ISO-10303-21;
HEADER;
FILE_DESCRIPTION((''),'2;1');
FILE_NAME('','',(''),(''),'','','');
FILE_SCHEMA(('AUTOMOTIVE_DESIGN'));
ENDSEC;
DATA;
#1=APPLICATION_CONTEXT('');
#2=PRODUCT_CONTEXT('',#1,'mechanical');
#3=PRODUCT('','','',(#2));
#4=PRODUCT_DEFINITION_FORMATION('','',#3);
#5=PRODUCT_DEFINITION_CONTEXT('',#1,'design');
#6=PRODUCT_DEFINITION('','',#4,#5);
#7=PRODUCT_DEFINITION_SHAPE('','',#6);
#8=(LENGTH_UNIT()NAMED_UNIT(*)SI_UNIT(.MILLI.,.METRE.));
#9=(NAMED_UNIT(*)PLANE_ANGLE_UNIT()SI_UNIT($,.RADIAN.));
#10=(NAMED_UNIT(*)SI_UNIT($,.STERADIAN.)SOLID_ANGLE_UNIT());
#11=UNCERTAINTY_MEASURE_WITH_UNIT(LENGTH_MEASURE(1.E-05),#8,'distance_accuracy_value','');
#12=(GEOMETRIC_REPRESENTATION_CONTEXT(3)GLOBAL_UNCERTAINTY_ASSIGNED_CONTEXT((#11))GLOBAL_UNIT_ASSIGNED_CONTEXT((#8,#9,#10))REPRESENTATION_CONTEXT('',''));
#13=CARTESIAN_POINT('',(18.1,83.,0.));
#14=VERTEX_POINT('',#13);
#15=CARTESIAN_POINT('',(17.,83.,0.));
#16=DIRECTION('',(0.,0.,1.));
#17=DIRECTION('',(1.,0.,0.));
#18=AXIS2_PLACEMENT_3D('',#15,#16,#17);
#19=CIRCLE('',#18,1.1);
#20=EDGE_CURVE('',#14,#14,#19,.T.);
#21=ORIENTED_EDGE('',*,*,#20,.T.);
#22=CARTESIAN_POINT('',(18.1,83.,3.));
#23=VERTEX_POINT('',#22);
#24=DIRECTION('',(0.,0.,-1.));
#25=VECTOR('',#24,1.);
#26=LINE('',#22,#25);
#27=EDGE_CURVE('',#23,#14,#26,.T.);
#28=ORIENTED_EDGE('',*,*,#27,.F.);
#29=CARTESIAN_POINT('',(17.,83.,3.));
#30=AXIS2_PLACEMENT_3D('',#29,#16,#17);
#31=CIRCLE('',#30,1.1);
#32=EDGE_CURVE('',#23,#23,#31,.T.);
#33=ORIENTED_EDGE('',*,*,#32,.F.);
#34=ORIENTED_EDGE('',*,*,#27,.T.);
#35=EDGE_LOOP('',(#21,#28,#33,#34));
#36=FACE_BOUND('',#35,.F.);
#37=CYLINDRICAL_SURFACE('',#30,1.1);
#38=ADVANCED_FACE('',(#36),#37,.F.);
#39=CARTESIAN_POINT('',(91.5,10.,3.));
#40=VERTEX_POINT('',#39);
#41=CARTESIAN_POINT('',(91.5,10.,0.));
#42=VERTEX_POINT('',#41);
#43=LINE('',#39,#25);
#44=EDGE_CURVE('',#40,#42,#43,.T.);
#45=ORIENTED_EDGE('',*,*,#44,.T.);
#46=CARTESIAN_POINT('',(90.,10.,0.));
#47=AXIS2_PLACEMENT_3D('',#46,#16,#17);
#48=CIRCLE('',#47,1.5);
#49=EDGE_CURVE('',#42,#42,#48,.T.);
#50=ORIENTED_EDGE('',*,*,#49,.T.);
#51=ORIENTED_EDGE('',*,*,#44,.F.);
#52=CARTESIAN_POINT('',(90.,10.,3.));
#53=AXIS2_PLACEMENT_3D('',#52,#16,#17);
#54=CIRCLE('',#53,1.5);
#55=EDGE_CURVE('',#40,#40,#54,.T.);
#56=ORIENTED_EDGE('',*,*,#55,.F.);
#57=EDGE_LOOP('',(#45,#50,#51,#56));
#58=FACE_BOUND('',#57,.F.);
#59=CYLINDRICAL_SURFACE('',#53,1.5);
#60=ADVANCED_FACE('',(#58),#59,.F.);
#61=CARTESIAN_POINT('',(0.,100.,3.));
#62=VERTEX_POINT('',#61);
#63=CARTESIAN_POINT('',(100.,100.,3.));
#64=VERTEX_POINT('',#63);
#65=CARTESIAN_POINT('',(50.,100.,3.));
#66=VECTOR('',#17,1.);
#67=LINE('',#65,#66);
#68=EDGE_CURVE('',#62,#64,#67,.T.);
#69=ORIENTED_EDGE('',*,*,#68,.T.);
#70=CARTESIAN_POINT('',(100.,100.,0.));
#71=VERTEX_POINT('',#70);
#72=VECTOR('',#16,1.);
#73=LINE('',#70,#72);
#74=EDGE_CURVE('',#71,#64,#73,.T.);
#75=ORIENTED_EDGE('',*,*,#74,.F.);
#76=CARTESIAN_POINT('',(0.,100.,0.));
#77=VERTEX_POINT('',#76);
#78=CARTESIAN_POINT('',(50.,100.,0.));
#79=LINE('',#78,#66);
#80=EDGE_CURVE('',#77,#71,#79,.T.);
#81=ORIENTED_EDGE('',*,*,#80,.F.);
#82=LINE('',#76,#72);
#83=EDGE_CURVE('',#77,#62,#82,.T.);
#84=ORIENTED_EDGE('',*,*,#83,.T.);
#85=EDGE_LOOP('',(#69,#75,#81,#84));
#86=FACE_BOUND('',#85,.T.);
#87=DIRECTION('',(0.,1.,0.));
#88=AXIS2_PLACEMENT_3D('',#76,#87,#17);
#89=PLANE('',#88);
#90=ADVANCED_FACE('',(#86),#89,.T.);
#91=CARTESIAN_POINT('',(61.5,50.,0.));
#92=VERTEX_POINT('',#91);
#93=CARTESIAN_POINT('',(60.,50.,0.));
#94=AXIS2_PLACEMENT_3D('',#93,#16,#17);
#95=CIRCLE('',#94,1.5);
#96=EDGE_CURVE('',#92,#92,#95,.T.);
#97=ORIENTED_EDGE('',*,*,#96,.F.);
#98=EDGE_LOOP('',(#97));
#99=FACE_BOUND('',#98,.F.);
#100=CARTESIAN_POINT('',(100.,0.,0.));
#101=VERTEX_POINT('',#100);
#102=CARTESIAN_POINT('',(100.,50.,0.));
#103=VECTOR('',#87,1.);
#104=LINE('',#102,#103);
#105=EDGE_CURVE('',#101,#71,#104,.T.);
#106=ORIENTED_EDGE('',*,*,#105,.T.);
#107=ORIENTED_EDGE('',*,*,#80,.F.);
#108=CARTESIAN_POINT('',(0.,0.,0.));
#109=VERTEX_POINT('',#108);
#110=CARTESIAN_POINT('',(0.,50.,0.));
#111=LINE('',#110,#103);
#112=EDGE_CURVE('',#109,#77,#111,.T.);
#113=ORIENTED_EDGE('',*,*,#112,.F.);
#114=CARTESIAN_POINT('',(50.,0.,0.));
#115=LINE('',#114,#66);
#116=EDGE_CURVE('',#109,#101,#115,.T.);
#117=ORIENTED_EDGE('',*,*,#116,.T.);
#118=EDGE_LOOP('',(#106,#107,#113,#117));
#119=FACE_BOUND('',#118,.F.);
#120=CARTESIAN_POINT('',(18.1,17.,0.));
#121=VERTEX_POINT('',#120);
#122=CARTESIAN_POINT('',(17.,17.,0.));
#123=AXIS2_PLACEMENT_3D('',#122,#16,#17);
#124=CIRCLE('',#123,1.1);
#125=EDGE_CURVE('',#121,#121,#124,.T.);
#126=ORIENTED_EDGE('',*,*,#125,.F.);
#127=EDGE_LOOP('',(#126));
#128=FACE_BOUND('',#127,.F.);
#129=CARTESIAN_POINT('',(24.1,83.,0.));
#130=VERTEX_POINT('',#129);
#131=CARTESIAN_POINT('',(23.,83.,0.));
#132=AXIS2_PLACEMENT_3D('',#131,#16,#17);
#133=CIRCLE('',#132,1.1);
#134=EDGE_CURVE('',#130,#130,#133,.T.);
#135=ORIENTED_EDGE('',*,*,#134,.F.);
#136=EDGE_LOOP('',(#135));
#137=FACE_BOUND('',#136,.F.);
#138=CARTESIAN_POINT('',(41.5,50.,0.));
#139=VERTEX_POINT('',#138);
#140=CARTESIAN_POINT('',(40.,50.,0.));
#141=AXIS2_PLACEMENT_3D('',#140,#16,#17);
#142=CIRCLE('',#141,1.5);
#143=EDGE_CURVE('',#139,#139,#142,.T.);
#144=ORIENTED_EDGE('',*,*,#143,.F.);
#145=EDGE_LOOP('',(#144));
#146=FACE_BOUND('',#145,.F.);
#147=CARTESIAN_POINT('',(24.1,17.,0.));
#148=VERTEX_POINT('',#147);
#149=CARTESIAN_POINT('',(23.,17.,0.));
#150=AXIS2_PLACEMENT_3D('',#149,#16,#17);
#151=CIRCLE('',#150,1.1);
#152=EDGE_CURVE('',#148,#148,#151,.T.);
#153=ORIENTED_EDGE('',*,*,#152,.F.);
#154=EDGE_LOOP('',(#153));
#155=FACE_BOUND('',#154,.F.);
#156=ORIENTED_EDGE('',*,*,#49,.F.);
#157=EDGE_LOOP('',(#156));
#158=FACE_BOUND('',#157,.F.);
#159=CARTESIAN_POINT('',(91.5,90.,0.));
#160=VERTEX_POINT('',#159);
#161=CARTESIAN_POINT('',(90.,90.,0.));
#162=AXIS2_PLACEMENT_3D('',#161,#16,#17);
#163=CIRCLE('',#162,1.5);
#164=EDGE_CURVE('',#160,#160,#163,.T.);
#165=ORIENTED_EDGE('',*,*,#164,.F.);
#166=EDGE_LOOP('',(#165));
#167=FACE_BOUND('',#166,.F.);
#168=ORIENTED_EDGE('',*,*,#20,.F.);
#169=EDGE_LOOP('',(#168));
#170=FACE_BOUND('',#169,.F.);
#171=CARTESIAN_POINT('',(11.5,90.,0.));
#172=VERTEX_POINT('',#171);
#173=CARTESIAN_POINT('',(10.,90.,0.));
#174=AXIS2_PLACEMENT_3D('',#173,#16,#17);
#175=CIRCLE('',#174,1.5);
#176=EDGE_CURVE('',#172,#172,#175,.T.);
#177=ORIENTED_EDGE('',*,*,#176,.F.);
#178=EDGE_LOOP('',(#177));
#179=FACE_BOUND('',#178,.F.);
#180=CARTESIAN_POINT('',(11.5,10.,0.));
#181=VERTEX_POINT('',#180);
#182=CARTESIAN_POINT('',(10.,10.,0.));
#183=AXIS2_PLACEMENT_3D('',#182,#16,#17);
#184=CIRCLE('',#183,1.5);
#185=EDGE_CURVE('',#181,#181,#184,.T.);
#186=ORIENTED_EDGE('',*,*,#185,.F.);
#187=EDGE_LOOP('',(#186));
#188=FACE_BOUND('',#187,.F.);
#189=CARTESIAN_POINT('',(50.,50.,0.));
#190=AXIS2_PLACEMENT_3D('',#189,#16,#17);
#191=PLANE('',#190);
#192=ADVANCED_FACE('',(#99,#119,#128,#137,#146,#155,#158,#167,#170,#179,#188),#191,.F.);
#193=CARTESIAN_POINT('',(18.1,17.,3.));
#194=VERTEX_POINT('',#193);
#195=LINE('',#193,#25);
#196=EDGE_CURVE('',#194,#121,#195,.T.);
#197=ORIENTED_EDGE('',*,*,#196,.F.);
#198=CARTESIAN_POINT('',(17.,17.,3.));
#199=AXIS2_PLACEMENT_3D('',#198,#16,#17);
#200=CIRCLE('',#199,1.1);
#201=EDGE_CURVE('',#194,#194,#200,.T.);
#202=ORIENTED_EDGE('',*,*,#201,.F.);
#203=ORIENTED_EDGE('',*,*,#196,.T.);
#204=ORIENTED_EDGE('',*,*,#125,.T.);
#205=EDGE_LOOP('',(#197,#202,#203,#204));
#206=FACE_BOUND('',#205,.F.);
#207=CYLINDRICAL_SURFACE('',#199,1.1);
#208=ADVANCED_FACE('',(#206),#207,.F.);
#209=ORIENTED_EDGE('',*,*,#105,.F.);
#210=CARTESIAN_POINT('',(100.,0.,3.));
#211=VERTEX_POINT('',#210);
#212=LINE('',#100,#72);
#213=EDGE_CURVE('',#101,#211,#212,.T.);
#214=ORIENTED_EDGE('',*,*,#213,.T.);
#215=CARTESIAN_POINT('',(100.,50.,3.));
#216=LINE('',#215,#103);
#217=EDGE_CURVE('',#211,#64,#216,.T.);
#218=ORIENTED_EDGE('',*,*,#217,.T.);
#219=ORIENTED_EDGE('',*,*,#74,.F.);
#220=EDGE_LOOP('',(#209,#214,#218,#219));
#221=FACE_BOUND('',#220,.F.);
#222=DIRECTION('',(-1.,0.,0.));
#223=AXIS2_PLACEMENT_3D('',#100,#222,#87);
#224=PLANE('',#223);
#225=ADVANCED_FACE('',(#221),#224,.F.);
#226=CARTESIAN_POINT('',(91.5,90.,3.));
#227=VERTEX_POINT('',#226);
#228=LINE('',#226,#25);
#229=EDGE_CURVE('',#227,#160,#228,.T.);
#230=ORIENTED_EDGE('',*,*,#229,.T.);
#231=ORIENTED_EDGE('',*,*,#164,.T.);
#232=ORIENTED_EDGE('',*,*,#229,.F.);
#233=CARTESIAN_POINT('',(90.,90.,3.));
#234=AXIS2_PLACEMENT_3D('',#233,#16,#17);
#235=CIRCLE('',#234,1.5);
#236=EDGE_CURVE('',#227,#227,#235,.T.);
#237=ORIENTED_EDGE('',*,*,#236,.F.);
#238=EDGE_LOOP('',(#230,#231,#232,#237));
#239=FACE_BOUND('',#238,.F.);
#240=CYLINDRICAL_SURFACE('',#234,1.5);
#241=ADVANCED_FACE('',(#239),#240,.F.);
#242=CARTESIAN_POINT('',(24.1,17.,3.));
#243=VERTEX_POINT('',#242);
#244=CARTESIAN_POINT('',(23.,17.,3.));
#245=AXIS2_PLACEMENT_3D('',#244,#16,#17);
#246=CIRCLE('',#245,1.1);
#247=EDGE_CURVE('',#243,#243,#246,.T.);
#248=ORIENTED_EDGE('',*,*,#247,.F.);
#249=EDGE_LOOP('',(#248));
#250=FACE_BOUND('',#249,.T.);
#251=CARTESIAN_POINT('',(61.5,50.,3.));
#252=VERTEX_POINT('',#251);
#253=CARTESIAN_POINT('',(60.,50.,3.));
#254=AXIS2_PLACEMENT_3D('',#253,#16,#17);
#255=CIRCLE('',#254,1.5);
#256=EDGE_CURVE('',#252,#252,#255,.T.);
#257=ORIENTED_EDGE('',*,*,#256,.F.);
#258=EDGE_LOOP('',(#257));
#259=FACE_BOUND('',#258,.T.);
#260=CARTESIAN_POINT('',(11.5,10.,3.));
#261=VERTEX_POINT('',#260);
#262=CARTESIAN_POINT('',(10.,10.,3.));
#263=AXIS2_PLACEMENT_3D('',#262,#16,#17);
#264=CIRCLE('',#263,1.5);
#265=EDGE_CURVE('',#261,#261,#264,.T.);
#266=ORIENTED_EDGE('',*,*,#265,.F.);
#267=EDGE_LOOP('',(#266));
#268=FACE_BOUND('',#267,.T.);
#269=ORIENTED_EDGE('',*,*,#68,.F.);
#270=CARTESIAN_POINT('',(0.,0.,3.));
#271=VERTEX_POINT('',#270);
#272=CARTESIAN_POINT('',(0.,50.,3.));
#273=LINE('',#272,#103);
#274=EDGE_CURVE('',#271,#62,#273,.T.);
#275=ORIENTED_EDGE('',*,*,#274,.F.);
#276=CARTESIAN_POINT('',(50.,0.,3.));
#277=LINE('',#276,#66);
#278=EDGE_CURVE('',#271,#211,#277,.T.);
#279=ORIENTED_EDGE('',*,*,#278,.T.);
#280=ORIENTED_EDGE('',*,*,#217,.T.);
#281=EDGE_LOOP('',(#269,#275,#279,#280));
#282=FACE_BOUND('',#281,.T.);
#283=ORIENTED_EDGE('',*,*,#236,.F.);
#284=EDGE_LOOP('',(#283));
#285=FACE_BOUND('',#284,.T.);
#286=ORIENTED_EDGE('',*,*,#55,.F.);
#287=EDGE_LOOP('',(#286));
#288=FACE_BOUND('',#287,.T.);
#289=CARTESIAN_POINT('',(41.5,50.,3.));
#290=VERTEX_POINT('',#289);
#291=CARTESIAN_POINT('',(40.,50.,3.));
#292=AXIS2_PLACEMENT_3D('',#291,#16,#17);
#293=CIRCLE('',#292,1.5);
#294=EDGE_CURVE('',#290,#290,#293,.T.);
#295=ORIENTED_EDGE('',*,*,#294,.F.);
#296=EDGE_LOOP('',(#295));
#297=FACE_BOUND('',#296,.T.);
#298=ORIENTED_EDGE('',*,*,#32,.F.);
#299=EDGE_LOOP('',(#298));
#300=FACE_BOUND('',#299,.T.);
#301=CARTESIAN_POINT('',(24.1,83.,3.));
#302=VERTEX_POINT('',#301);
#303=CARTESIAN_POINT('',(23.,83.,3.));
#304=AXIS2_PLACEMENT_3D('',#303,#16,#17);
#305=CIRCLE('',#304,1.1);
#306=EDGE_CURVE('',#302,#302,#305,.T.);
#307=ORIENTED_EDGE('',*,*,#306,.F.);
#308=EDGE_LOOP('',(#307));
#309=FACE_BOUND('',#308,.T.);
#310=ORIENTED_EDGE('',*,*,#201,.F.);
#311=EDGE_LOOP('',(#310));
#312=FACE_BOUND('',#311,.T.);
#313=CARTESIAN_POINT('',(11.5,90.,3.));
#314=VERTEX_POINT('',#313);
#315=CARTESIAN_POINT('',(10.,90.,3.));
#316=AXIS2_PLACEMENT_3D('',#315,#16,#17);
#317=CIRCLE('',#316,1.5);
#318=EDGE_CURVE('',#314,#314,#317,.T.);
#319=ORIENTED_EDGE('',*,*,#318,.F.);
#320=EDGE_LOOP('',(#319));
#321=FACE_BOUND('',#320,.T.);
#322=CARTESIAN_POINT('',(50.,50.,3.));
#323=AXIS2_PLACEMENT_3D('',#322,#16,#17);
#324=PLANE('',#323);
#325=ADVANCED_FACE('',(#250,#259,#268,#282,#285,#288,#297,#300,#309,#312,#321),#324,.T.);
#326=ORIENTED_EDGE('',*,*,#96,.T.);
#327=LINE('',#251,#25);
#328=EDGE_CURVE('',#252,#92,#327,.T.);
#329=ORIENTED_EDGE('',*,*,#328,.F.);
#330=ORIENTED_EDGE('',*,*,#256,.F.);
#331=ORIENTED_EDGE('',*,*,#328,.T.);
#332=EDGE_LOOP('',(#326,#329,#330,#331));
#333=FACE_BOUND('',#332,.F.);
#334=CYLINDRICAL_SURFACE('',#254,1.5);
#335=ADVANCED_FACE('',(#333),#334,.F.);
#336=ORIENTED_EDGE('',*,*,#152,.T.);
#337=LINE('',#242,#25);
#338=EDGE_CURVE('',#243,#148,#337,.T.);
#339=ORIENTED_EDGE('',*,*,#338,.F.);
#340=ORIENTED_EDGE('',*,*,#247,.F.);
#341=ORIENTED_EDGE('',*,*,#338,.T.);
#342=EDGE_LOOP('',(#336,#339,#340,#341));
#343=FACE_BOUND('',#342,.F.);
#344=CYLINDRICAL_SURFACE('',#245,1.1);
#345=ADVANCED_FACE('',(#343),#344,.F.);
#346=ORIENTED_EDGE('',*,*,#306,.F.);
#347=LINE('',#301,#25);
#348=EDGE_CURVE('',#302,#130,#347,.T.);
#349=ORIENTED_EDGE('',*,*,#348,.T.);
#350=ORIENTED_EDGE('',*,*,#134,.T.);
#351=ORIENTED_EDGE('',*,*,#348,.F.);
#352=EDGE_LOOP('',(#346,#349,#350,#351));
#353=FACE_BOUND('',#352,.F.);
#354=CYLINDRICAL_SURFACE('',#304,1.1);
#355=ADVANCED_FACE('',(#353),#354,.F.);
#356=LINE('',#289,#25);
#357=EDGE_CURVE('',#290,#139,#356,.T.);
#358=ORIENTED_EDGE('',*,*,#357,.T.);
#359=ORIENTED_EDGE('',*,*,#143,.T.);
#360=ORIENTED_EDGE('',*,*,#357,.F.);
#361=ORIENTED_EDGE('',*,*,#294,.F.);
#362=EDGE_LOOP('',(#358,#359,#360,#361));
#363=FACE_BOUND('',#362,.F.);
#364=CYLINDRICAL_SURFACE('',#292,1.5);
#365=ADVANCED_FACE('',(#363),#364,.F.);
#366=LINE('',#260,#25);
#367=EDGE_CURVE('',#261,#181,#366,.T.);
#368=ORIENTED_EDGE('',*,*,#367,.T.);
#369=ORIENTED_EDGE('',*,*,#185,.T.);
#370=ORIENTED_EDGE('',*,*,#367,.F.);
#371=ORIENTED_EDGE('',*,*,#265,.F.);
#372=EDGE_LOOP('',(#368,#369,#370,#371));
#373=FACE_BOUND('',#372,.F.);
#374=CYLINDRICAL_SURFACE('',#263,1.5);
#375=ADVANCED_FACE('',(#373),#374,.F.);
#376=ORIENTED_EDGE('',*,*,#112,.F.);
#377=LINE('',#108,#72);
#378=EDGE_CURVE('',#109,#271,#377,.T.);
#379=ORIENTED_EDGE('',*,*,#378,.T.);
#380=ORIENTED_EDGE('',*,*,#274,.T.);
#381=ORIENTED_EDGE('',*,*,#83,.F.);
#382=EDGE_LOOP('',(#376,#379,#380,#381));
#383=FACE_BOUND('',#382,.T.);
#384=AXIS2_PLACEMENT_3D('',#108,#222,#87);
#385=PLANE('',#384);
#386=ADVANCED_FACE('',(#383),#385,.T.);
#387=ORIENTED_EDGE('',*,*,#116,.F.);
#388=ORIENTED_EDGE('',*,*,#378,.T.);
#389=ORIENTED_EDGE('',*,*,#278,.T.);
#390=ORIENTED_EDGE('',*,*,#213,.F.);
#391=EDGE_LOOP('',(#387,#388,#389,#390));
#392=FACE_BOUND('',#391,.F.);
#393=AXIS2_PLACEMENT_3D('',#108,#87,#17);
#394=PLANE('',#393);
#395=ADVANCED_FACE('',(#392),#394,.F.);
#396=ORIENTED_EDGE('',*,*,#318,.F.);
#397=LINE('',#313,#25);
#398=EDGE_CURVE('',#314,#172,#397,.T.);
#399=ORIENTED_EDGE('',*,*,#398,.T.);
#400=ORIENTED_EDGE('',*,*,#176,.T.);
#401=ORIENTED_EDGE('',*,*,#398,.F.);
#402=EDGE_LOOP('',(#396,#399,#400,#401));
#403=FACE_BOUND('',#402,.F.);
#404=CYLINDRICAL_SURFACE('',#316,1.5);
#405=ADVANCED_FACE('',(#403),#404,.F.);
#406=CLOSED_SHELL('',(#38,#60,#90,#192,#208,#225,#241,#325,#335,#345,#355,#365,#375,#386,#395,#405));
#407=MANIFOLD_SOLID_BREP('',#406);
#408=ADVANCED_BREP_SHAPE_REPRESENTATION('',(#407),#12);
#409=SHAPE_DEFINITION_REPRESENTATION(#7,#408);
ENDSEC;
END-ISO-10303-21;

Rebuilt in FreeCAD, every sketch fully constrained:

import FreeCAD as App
import Part
import Sketcher

V = App.Vector
Q = App.Units.Quantity

doc = App.newDocument("Part")
body = doc.addObject("PartDesign::Body", "Body")

sketch1 = body.newObject("Sketcher::SketchObject", "Sketch")
sketch1.AttachmentSupport = (doc.getObject("XY_Plane"), [""])
sketch1.MapMode = "FlatFace"
sketch1.addGeometry([
    Part.LineSegment(V(0, 100, 0), V(0, 0, 0)),
    Part.LineSegment(V(0, 0, 0), V(100, 0, 0)),
    Part.LineSegment(V(100, 0, 0), V(100, 100, 0)),
    Part.LineSegment(V(100, 100, 0), V(0, 100, 0)),
], False)
sketch1.addConstraint([
    Sketcher.Constraint("Coincident", 0, 2, 1, 1),
    Sketcher.Constraint("Coincident", 1, 2, 2, 1),
    Sketcher.Constraint("Coincident", 2, 2, 3, 1),
    Sketcher.Constraint("Coincident", 3, 2, 0, 1),
    Sketcher.Constraint("Vertical", 0),
    Sketcher.Constraint("Horizontal", 1),
    Sketcher.Constraint("Vertical", 2),
    Sketcher.Constraint("Horizontal", 3),
    Sketcher.Constraint("Coincident", 0, 2, -1, 1),
    Sketcher.Constraint("Equal", 3, 0),
    Sketcher.Constraint("DistanceX", 1, 1, 1, 2, Q("100 mm")),
])
pad1 = body.newObject("PartDesign::Pad", "Pad")
pad1.Profile = sketch1
pad1.Length = 3

sketch2 = body.newObject("Sketcher::SketchObject", "Sketch001")
sketch2.AttachmentSupport = (doc.getObject("XY_Plane"), [""])
sketch2.MapMode = "FlatFace"
sketch2.AttachmentOffset = App.Placement(V(0, 0, 3), App.Rotation())
sketch2.addGeometry([
    Part.Circle(V(10, 90, 0), V(0, 0, 1), 1.5),
    Part.Circle(V(90, 90, 0), V(0, 0, 1), 1.5),
    Part.Circle(V(90, 10, 0), V(0, 0, 1), 1.5),
    Part.Circle(V(10, 10, 0), V(0, 0, 1), 1.5),
], False)
sketch2.addConstraint([
    Sketcher.Constraint("Equal", 0, 1),
    Sketcher.Constraint("Equal", 1, 2),
    Sketcher.Constraint("Equal", 2, 3),
    Sketcher.Constraint("Horizontal", 0, 3, 1, 3),
    Sketcher.Constraint("Horizontal", 2, 3, 3, 3),
    Sketcher.Constraint("Vertical", 1, 3, 2, 3),
    Sketcher.Constraint("Vertical", 0, 3, 3, 3),
    Sketcher.Constraint("Diameter", 0, Q("3 mm")),
    Sketcher.Constraint("DistanceX", -1, 1, 0, 3, Q("10 mm")),
    Sketcher.Constraint("DistanceY", -1, 1, 0, 3, Q("90 mm")),
    Sketcher.Constraint("DistanceX", -1, 1, 1, 3, Q("90 mm")),
    Sketcher.Constraint("DistanceY", -1, 1, 2, 3, Q("10 mm")),
])
pocket1 = body.newObject("PartDesign::Pocket", "Pocket")
pocket1.Profile = sketch2
pocket1.Type = "ThroughAll"

sketch3 = body.newObject("Sketcher::SketchObject", "Sketch002")
sketch3.AttachmentSupport = (doc.getObject("XY_Plane"), [""])
sketch3.MapMode = "FlatFace"
sketch3.AttachmentOffset = App.Placement(V(0, 0, 3), App.Rotation())
sketch3.addGeometry([
    Part.Circle(V(17, 83, 0), V(0, 0, 1), 1.1),
    Part.Circle(V(23, 83, 0), V(0, 0, 1), 1.1),
    Part.Circle(V(17, 17, 0), V(0, 0, 1), 1.1),
    Part.Circle(V(23, 17, 0), V(0, 0, 1), 1.1),
], False)
sketch3.addConstraint([
    Sketcher.Constraint("Equal", 0, 1),
    Sketcher.Constraint("Equal", 1, 2),
    Sketcher.Constraint("Equal", 2, 3),
    Sketcher.Constraint("Horizontal", 0, 3, 1, 3),
    Sketcher.Constraint("Horizontal", 2, 3, 3, 3),
    Sketcher.Constraint("Vertical", 0, 3, 2, 3),
    Sketcher.Constraint("Vertical", 1, 3, 3, 3),
    Sketcher.Constraint("Diameter", 0, Q("2.2 mm")),
    Sketcher.Constraint("DistanceX", -1, 1, 0, 3, Q("17 mm")),
    Sketcher.Constraint("DistanceY", -1, 1, 0, 3, Q("83 mm")),
    Sketcher.Constraint("DistanceX", -1, 1, 1, 3, Q("23 mm")),
    Sketcher.Constraint("DistanceY", -1, 1, 2, 3, Q("17 mm")),
])
pocket2 = body.newObject("PartDesign::Pocket", "Pocket001")
pocket2.Profile = sketch3
pocket2.Type = "ThroughAll"

sketch4 = body.newObject("Sketcher::SketchObject", "Sketch003")
sketch4.AttachmentSupport = (doc.getObject("XY_Plane"), [""])
sketch4.MapMode = "FlatFace"
sketch4.AttachmentOffset = App.Placement(V(0, 0, 3), App.Rotation())
sketch4.addGeometry([
    Part.Circle(V(40, 50, 0), V(0, 0, 1), 1.5),
    Part.Circle(V(60, 50, 0), V(0, 0, 1), 1.5),
], False)
sketch4.addConstraint([
    Sketcher.Constraint("Equal", 0, 1),
    Sketcher.Constraint("Horizontal", 0, 3, 1, 3),
    Sketcher.Constraint("Diameter", 0, Q("3 mm")),
    Sketcher.Constraint("DistanceX", -1, 1, 0, 3, Q("40 mm")),
    Sketcher.Constraint("DistanceY", -1, 1, 0, 3, Q("50 mm")),
    Sketcher.Constraint("DistanceX", -1, 1, 1, 3, Q("60 mm")),
])
pocket3 = body.newObject("PartDesign::Pocket", "Pocket002")
pocket3.Profile = sketch4
pocket3.Type = "ThroughAll"

doc.recompute()
